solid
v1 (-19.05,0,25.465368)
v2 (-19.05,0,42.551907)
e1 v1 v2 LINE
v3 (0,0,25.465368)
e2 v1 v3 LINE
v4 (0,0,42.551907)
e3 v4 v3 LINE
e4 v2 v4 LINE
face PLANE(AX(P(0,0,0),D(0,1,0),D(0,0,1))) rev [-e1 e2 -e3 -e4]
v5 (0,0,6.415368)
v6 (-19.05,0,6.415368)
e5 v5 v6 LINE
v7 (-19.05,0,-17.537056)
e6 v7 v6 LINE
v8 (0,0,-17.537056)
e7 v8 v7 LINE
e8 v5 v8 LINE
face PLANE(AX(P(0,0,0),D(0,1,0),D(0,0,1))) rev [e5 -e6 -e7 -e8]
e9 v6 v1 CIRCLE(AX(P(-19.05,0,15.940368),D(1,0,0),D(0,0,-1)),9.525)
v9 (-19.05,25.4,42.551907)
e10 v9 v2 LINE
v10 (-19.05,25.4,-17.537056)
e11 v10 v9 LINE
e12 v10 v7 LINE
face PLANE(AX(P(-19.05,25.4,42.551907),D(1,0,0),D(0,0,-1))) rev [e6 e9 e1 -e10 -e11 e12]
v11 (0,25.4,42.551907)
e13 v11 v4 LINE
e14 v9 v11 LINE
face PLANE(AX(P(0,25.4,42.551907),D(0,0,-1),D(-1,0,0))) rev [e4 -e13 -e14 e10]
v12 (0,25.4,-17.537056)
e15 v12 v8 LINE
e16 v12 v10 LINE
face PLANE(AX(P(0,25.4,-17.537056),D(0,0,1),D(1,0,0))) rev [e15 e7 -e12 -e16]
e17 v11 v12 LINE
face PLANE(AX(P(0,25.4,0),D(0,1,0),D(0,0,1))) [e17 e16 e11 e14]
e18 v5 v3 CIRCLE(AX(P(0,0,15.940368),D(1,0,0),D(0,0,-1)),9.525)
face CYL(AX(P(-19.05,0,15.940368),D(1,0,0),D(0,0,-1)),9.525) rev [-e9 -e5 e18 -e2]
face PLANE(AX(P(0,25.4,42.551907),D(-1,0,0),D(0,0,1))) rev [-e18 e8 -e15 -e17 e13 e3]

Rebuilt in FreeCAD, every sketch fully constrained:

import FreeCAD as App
import Part
import Sketcher

V = App.Vector
Q = App.Units.Quantity


def add_polygon(sketch, points):
    """Adds a closed chain of lines whose ends are joined by coincident constraints."""
    first, n = sketch.GeometryCount, len(points)
    for a, b in zip(points, points[1:] + points[:1]):
        sketch.addGeometry(Part.LineSegment(App.Vector(*a, 0), App.Vector(*b, 0)), False)
    for i in range(n):
        sketch.addConstraint(Sketcher.Constraint("Coincident", first + i, 2, first + (i + 1) % n, 1))

doc = App.newDocument("Part")
body = doc.addObject("PartDesign::Body", "Body")

# Sketch on XZ plane
sketch1 = body.newObject("Sketcher::SketchObject", "Sketch")
sketch1.AttachmentSupport = (doc.getObject("XZ_Plane"), [""])
sketch1.MapMode = "FlatFace"
add_polygon(sketch1, [(-19, -18), (-19, 43), (0, 43), (0, -18)])  # lines 0-3
sketch1.addConstraint(Sketcher.Constraint("Vertical", 0))
sketch1.addConstraint(Sketcher.Constraint("Horizontal", 1))
sketch1.addConstraint(Sketcher.Constraint("Vertical", 2))
sketch1.addConstraint(Sketcher.Constraint("Horizontal", 3))
sketch1.addConstraint(Sketcher.Constraint("PointOnObject", 1, 2, -2))
sketch1.addConstraint(Sketcher.Constraint("DistanceX", 1, 1, 1, 2, Q("0.75 in")))
sketch1.addConstraint(Sketcher.Constraint("DistanceY", 0, 1, 0, 2, Q("60.088963 mm")))
sketch1.addConstraint(Sketcher.Constraint("DistanceY", -1, 1, 0, 2, Q("42.551907 mm")))
pad1 = body.newObject("PartDesign::Pad", "Pad")
pad1.Profile = sketch1
pad1.Length = Q("1 in")
pad1.Reversed = True

# Sketch on YZ plane
sketch2 = body.newObject("Sketcher::SketchObject", "Sketch001")
sketch2.AttachmentSupport = (doc.getObject("YZ_Plane"), [""])
sketch2.MapMode = "FlatFace"
sketch2.addGeometry(Part.Circle(V(0, 16, 0), V(0, 0, 1), 10), False)
sketch2.addConstraint(Sketcher.Constraint("PointOnObject", 0, 3, -2))
sketch2.addConstraint(Sketcher.Constraint("Diameter", 0, Q("0.75 in")))
sketch2.addConstraint(Sketcher.Constraint("DistanceY", -1, 1, 0, 3, Q("15.940368 mm")))
pocket1 = body.newObject("PartDesign::Pocket", "Pocket")
pocket1.Profile = sketch2
pocket1.Type = "ThroughAll"

doc.recompute()
